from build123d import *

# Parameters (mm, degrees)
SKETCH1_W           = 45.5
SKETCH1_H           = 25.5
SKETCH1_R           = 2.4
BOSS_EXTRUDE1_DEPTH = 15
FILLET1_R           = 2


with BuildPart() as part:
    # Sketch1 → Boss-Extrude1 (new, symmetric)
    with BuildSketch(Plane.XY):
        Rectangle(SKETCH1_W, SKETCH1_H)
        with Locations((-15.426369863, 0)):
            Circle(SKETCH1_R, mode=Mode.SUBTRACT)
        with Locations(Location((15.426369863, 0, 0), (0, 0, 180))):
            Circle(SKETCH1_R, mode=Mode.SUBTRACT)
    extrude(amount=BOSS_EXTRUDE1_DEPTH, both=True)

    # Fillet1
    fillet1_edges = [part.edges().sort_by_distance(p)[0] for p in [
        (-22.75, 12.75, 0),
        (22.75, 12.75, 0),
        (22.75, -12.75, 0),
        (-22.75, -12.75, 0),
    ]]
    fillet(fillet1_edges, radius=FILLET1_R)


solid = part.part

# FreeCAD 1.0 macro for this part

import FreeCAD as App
import Part
import Sketcher

V = App.Vector
Q = App.Units.Quantity


def edges_at(feature, points):
    """Names of the edges that pass closest to the given points."""
    edges = feature.Shape.Edges
    near = lambda p: min(range(len(edges)), key=lambda i: edges[i].distToShape(Part.Vertex(*p))[0])
    return sorted({f"Edge{near(p) + 1}" for p in points})

doc = App.newDocument("Part")
params = doc.addObject("Spreadsheet::Sheet", "Params")
for row, (alias, value) in enumerate([
    ("sketch1_diameter", "4.8 mm"),
    ("sketch1_width", "45.5 mm"),
    ("sketch1_height", "25.5 mm"),
    ("pad1_length", "30 mm"),
    ("fillet_radius", "2 mm"),
], start=1):
    params.set(f"A{row}", alias)
    params.set(f"B{row}", "=" + value)
    params.setAlias(f"B{row}", alias)

body = doc.addObject("PartDesign::Body", "Body")

# Sketch on XY plane
sketch1 = body.newObject("Sketcher::SketchObject", "Sketch")
sketch1.AttachmentSupport = (doc.getObject("XY_Plane"), [""])
sketch1.MapMode = "FlatFace"
sketch1.addGeometry([
    Part.LineSegment(V(-22.75, 12.75, 0), V(-22.75, -12.75, 0)),  # 0
    Part.LineSegment(V(-22.75, -12.75, 0), V(22.75, -12.75, 0)),  # 1
    Part.LineSegment(V(22.75, -12.75, 0), V(22.75, 12.75, 0)),  # 2
    Part.LineSegment(V(22.75, 12.75, 0), V(-22.75, 12.75, 0)),  # 3
    Part.Circle(V(-15.42637, 0, 0), V(0, 0, 1), 2.4),  # 4
    Part.Circle(V(15.42637, 0, 0), V(0, 0, 1), 2.4),  # 5
], False)
sketch1.addConstraint([
    Sketcher.Constraint("Coincident", 0, 2, 1, 1),
    Sketcher.Constraint("Coincident", 1, 2, 2, 1),
    Sketcher.Constraint("Coincident", 2, 2, 3, 1),
    Sketcher.Constraint("Coincident", 3, 2, 0, 1),
    Sketcher.Constraint("Vertical", 0),
    Sketcher.Constraint("Horizontal", 1),
    Sketcher.Constraint("Vertical", 2),
    Sketcher.Constraint("Horizontal", 3),
    Sketcher.Constraint("Equal", 4, 5),
    Sketcher.Constraint("Symmetric", 4, 3, 5, 3, -1, 1),
    Sketcher.Constraint("Symmetric", 0, 2, 2, 2, -1, 1),
    Sketcher.Constraint("PointOnObject", 4, 3, -1),
    Sketcher.Constraint("Diameter", 4, Q("4.8 mm")),
    Sketcher.Constraint("DistanceX", 1, 1, 1, 2, Q("45.5 mm")),
    Sketcher.Constraint("DistanceY", 0, 2, 0, 1, Q("25.5 mm")),
    Sketcher.Constraint("DistanceX", 4, 3, -1, 1, Q("15.42637 mm")),
])
sketch1.setExpression("Constraints[12]", "Params.sketch1_diameter")
sketch1.setExpression("Constraints[13]", "Params.sketch1_width")
sketch1.setExpression("Constraints[14]", "Params.sketch1_height")
pad1 = body.newObject("PartDesign::Pad", "Pad")
pad1.Profile = sketch1
pad1.setExpression("Length", "Params.pad1_length")
pad1.Midplane = True
doc.recompute()

fillet = body.newObject("PartDesign::Fillet", "Fillet")
fillet.Base = (pad1, edges_at(pad1, [
    (-22.75, 12.75, 0),
    (22.75, 12.75, 0),
    (22.75, -12.75, 0),
    (-22.75, -12.75, 0),
]))
fillet.setExpression("Radius", "Params.fillet_radius")

doc.recompute()
